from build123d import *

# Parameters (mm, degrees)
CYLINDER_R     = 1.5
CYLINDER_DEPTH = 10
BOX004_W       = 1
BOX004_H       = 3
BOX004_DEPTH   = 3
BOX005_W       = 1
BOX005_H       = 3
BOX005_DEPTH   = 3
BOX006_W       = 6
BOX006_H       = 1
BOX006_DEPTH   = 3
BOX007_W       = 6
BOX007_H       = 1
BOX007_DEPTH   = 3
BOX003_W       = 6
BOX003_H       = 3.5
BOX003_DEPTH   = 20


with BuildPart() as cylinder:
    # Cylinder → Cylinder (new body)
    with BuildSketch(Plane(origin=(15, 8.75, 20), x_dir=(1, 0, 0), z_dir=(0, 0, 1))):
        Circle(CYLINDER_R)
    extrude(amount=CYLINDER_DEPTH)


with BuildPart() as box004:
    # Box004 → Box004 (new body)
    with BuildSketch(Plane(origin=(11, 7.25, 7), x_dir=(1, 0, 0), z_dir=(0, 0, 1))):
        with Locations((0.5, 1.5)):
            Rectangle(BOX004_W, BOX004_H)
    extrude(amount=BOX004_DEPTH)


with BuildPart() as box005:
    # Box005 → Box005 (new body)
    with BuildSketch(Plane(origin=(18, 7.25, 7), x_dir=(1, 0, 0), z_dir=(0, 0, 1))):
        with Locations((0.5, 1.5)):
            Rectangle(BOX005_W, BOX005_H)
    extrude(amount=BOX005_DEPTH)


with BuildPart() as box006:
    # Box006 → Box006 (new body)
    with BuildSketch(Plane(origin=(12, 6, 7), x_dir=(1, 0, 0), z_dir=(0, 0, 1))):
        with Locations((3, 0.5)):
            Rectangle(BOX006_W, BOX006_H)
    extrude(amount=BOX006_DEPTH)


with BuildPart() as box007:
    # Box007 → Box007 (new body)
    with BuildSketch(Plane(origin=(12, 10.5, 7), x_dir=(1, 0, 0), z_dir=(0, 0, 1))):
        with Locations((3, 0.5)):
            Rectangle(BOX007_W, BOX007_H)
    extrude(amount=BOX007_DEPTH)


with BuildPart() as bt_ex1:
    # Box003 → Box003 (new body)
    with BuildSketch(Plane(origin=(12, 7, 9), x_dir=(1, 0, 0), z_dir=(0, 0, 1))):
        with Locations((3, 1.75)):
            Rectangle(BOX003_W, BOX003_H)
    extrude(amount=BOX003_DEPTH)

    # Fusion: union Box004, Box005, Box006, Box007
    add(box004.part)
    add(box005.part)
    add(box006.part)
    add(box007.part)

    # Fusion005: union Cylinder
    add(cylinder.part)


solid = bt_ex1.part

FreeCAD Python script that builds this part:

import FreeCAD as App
import Part
import Sketcher
from FreeCAD import Vector

doc = App.newDocument("Part")
body = doc.addObject("PartDesign::Body", "Body")

sketch1 = body.newObject("Sketcher::SketchObject", "Sketch")
sketch1.AttachmentSupport = (doc.getObject("XY_Plane"), [""])
sketch1.MapMode = "FlatFace"
sketch1.AttachmentOffset = App.Placement(Vector(0, 0, 20), App.Rotation())
sketch1.addGeometry(Part.Circle(Vector(15, 8.8, 0), Vector(0, 0, 1), 1.5), False)
sketch1.addConstraint(Sketcher.Constraint("Diameter", 0, 3.0))
sketch1.addConstraint(Sketcher.Constraint("DistanceX", -1, 1, 0, 3, 15.0))
sketch1.addConstraint(Sketcher.Constraint("DistanceY", -1, 1, 0, 3, 8.75))
pad1 = body.newObject("PartDesign::Pad", "Pad")
pad1.Profile = sketch1
pad1.Length = 10
body2 = doc.addObject("PartDesign::Body", "Body001")

sketch2 = body2.newObject("Sketcher::SketchObject", "Sketch001")
sketch2.AttachmentSupport = (doc.getObject("XY_Plane001"), [""])
sketch2.MapMode = "FlatFace"
sketch2.AttachmentOffset = App.Placement(Vector(0, 0, 7), App.Rotation())
sketch2.addGeometry(Part.LineSegment(Vector(11, 10.2, 0), Vector(11, 7.2, 0)), False)
sketch2.addGeometry(Part.LineSegment(Vector(11, 7.2, 0), Vector(12, 7.2, 0)), False)
sketch2.addGeometry(Part.LineSegment(Vector(12, 7.2, 0), Vector(12, 10.2, 0)), False)
sketch2.addGeometry(Part.LineSegment(Vector(12, 10.2, 0), Vector(11, 10.2, 0)), False)
sketch2.addConstraint(Sketcher.Constraint("Coincident", 0, 2, 1, 1))
sketch2.addConstraint(Sketcher.Constraint("Coincident", 1, 2, 2, 1))
sketch2.addConstraint(Sketcher.Constraint("Coincident", 2, 2, 3, 1))
sketch2.addConstraint(Sketcher.Constraint("Coincident", 3, 2, 0, 1))
sketch2.addConstraint(Sketcher.Constraint("Vertical", 0))
sketch2.addConstraint(Sketcher.Constraint("Horizontal", 1))
sketch2.addConstraint(Sketcher.Constraint("Vertical", 2))
sketch2.addConstraint(Sketcher.Constraint("Horizontal", 3))
sketch2.addConstraint(Sketcher.Constraint("DistanceX", 1, 1, 1, 2, 1.0))
sketch2.addConstraint(Sketcher.Constraint("DistanceY", 0, 2, 0, 1, 3.0))
sketch2.addConstraint(Sketcher.Constraint("DistanceX", -1, 1, 0, 2, 11.0))
sketch2.addConstraint(Sketcher.Constraint("DistanceY", -1, 1, 0, 2, 7.25))
pad2 = body2.newObject("PartDesign::Pad", "Pad001")
pad2.Profile = sketch2
pad2.Length = 3
body3 = doc.addObject("PartDesign::Body", "Body002")

sketch3 = body3.newObject("Sketcher::SketchObject", "Sketch002")
sketch3.AttachmentSupport = (doc.getObject("XY_Plane002"), [""])
sketch3.MapMode = "FlatFace"
sketch3.AttachmentOffset = App.Placement(Vector(0, 0, 7), App.Rotation())
sketch3.addGeometry(Part.LineSegment(Vector(18, 10.2, 0), Vector(18, 7.2, 0)), False)
sketch3.addGeometry(Part.LineSegment(Vector(18, 7.2, 0), Vector(19, 7.2, 0)), False)
sketch3.addGeometry(Part.LineSegment(Vector(19, 7.2, 0), Vector(19, 10.2, 0)), False)
sketch3.addGeometry(Part.LineSegment(Vector(19, 10.2, 0), Vector(18, 10.2, 0)), False)
sketch3.addConstraint(Sketcher.Constraint("Coincident", 0, 2, 1, 1))
sketch3.addConstraint(Sketcher.Constraint("Coincident", 1, 2, 2, 1))
sketch3.addConstraint(Sketcher.Constraint("Coincident", 2, 2, 3, 1))
sketch3.addConstraint(Sketcher.Constraint("Coincident", 3, 2, 0, 1))
sketch3.addConstraint(Sketcher.Constraint("Vertical", 0))
sketch3.addConstraint(Sketcher.Constraint("Horizontal", 1))
sketch3.addConstraint(Sketcher.Constraint("Vertical", 2))
sketch3.addConstraint(Sketcher.Constraint("Horizontal", 3))
sketch3.addConstraint(Sketcher.Constraint("DistanceX", 1, 1, 1, 2, 1.0))
sketch3.addConstraint(Sketcher.Constraint("DistanceY", 0, 2, 0, 1, 3.0))
sketch3.addConstraint(Sketcher.Constraint("DistanceX", -1, 1, 0, 2, 18.0))
sketch3.addConstraint(Sketcher.Constraint("DistanceY", -1, 1, 0, 2, 7.25))
pad3 = body3.newObject("PartDesign::Pad", "Pad002")
pad3.Profile = sketch3
pad3.Length = 3
body4 = doc.addObject("PartDesign::Body", "Body003")

sketch4 = body4.newObject("Sketcher::SketchObject", "Sketch003")
sketch4.AttachmentSupport = (doc.getObject("XY_Plane003"), [""])
sketch4.MapMode = "FlatFace"
sketch4.AttachmentOffset = App.Placement(Vector(0, 0, 7), App.Rotation())
sketch4.addGeometry(Part.LineSegment(Vector(12, 7, 0), Vector(12, 6, 0)), False)
sketch4.addGeometry(Part.LineSegment(Vector(12, 6, 0), Vector(18, 6, 0)), False)
sketch4.addGeometry(Part.LineSegment(Vector(18, 6, 0), Vector(18, 7, 0)), False)
sketch4.addGeometry(Part.LineSegment(Vector(18, 7, 0), Vector(12, 7, 0)), False)
sketch4.addConstraint(Sketcher.Constraint("Coincident", 0, 2, 1, 1))
sketch4.addConstraint(Sketcher.Constraint("Coincident", 1, 2, 2, 1))
sketch4.addConstraint(Sketcher.Constraint("Coincident", 2, 2, 3, 1))
sketch4.addConstraint(Sketcher.Constraint("Coincident", 3, 2, 0, 1))
sketch4.addConstraint(Sketcher.Constraint("Vertical", 0))
sketch4.addConstraint(Sketcher.Constraint("Horizontal", 1))
sketch4.addConstraint(Sketcher.Constraint("Vertical", 2))
sketch4.addConstraint(Sketcher.Constraint("Horizontal", 3))
sketch4.addConstraint(Sketcher.Constraint("DistanceX", 1, 1, 1, 2, 6.0))
sketch4.addConstraint(Sketcher.Constraint("DistanceY", 0, 2, 0, 1, 1.0))
sketch4.addConstraint(Sketcher.Constraint("DistanceX", -1, 1, 0, 2, 12.0))
sketch4.addConstraint(Sketcher.Constraint("DistanceY", -1, 1, 0, 2, 6.0))
pad4 = body4.newObject("PartDesign::Pad", "Pad003")
pad4.Profile = sketch4
pad4.Length = 3
body5 = doc.addObject("PartDesign::Body", "Body004")

sketch5 = body5.newObject("Sketcher::SketchObject", "Sketch004")
sketch5.AttachmentSupport = (doc.getObject("XY_Plane004"), [""])
sketch5.MapMode = "FlatFace"
sketch5.AttachmentOffset = App.Placement(Vector(0, 0, 7), App.Rotation())
sketch5.addGeometry(Part.LineSegment(Vector(12, 11.5, 0), Vector(12, 10.5, 0)), False)
sketch5.addGeometry(Part.LineSegment(Vector(12, 10.5, 0), Vector(18, 10.5, 0)), False)
sketch5.addGeometry(Part.LineSegment(Vector(18, 10.5, 0), Vector(18, 11.5, 0)), False)
sketch5.addGeometry(Part.LineSegment(Vector(18, 11.5, 0), Vector(12, 11.5, 0)), False)
sketch5.addConstraint(Sketcher.Constraint("Coincident", 0, 2, 1, 1))
sketch5.addConstraint(Sketcher.Constraint("Coincident", 1, 2, 2, 1))
sketch5.addConstraint(Sketcher.Constraint("Coincident", 2, 2, 3, 1))
sketch5.addConstraint(Sketcher.Constraint("Coincident", 3, 2, 0, 1))
sketch5.addConstraint(Sketcher.Constraint("Vertical", 0))
sketch5.addConstraint(Sketcher.Constraint("Horizontal", 1))
sketch5.addConstraint(Sketcher.Constraint("Vertical", 2))
sketch5.addConstraint(Sketcher.Constraint("Horizontal", 3))
sketch5.addConstraint(Sketcher.Constraint("DistanceX", 1, 1, 1, 2, 6.0))
sketch5.addConstraint(Sketcher.Constraint("DistanceY", 0, 2, 0, 1, 1.0))
sketch5.addConstraint(Sketcher.Constraint("DistanceX", -1, 1, 0, 2, 12.0))
sketch5.addConstraint(Sketcher.Constraint("DistanceY", -1, 1, 0, 2, 10.5))
pad5 = body5.newObject("PartDesign::Pad", "Pad004")
pad5.Profile = sketch5
pad5.Length = 3
body6 = doc.addObject("PartDesign::Body", "Body005")

sketch6 = body6.newObject("Sketcher::SketchObject", "Sketch005")
sketch6.AttachmentSupport = (doc.getObject("XY_Plane005"), [""])
sketch6.MapMode = "FlatFace"
sketch6.AttachmentOffset = App.Placement(Vector(0, 0, 9), App.Rotation())
sketch6.addGeometry(Part.LineSegment(Vector(12, 10.5, 0), Vector(12, 7, 0)), False)
sketch6.addGeometry(Part.LineSegment(Vector(12, 7, 0), Vector(18, 7, 0)), False)
sketch6.addGeometry(Part.LineSegment(Vector(18, 7, 0), Vector(18, 10.5, 0)), False)
sketch6.addGeometry(Part.LineSegment(Vector(18, 10.5, 0), Vector(12, 10.5, 0)), False)
sketch6.addConstraint(Sketcher.Constraint("Coincident", 0, 2, 1, 1))
sketch6.addConstraint(Sketcher.Constraint("Coincident", 1, 2, 2, 1))
sketch6.addConstraint(Sketcher.Constraint("Coincident", 2, 2, 3, 1))
sketch6.addConstraint(Sketcher.Constraint("Coincident", 3, 2, 0, 1))
sketch6.addConstraint(Sketcher.Constraint("Vertical", 0))
sketch6.addConstraint(Sketcher.Constraint("Horizontal", 1))
sketch6.addConstraint(Sketcher.Constraint("Vertical", 2))
sketch6.addConstraint(Sketcher.Constraint("Horizontal", 3))
sketch6.addConstraint(Sketcher.Constraint("DistanceX", 1, 1, 1, 2, 6.0))
sketch6.addConstraint(Sketcher.Constraint("DistanceY", 0, 2, 0, 1, 3.5))
sketch6.addConstraint(Sketcher.Constraint("DistanceX", -1, 1, 0, 2, 12.0))
sketch6.addConstraint(Sketcher.Constraint("DistanceY", -1, 1, 0, 2, 7.0))
pad6 = body6.newObject("PartDesign::Pad", "Pad005")
pad6.Profile = sketch6
pad6.Length = 20
doc.recompute()

boolean = body6.newObject("PartDesign::Boolean", "Boolean")
boolean.Type = "Fuse"
boolean.addObjects([body2])
doc.recompute()

boolean2 = body6.newObject("PartDesign::Boolean", "Boolean001")
boolean2.Type = "Fuse"
boolean2.addObjects([body3])
doc.recompute()

boolean3 = body6.newObject("PartDesign::Boolean", "Boolean002")
boolean3.Type = "Fuse"
boolean3.addObjects([body4])
doc.recompute()

boolean4 = body6.newObject("PartDesign::Boolean", "Boolean003")
boolean4.Type = "Fuse"
boolean4.addObjects([body5])
doc.recompute()

boolean5 = body6.newObject("PartDesign::Boolean", "Boolean004")
boolean5.Type = "Fuse"
boolean5.addObjects([body])

doc.recompute()
